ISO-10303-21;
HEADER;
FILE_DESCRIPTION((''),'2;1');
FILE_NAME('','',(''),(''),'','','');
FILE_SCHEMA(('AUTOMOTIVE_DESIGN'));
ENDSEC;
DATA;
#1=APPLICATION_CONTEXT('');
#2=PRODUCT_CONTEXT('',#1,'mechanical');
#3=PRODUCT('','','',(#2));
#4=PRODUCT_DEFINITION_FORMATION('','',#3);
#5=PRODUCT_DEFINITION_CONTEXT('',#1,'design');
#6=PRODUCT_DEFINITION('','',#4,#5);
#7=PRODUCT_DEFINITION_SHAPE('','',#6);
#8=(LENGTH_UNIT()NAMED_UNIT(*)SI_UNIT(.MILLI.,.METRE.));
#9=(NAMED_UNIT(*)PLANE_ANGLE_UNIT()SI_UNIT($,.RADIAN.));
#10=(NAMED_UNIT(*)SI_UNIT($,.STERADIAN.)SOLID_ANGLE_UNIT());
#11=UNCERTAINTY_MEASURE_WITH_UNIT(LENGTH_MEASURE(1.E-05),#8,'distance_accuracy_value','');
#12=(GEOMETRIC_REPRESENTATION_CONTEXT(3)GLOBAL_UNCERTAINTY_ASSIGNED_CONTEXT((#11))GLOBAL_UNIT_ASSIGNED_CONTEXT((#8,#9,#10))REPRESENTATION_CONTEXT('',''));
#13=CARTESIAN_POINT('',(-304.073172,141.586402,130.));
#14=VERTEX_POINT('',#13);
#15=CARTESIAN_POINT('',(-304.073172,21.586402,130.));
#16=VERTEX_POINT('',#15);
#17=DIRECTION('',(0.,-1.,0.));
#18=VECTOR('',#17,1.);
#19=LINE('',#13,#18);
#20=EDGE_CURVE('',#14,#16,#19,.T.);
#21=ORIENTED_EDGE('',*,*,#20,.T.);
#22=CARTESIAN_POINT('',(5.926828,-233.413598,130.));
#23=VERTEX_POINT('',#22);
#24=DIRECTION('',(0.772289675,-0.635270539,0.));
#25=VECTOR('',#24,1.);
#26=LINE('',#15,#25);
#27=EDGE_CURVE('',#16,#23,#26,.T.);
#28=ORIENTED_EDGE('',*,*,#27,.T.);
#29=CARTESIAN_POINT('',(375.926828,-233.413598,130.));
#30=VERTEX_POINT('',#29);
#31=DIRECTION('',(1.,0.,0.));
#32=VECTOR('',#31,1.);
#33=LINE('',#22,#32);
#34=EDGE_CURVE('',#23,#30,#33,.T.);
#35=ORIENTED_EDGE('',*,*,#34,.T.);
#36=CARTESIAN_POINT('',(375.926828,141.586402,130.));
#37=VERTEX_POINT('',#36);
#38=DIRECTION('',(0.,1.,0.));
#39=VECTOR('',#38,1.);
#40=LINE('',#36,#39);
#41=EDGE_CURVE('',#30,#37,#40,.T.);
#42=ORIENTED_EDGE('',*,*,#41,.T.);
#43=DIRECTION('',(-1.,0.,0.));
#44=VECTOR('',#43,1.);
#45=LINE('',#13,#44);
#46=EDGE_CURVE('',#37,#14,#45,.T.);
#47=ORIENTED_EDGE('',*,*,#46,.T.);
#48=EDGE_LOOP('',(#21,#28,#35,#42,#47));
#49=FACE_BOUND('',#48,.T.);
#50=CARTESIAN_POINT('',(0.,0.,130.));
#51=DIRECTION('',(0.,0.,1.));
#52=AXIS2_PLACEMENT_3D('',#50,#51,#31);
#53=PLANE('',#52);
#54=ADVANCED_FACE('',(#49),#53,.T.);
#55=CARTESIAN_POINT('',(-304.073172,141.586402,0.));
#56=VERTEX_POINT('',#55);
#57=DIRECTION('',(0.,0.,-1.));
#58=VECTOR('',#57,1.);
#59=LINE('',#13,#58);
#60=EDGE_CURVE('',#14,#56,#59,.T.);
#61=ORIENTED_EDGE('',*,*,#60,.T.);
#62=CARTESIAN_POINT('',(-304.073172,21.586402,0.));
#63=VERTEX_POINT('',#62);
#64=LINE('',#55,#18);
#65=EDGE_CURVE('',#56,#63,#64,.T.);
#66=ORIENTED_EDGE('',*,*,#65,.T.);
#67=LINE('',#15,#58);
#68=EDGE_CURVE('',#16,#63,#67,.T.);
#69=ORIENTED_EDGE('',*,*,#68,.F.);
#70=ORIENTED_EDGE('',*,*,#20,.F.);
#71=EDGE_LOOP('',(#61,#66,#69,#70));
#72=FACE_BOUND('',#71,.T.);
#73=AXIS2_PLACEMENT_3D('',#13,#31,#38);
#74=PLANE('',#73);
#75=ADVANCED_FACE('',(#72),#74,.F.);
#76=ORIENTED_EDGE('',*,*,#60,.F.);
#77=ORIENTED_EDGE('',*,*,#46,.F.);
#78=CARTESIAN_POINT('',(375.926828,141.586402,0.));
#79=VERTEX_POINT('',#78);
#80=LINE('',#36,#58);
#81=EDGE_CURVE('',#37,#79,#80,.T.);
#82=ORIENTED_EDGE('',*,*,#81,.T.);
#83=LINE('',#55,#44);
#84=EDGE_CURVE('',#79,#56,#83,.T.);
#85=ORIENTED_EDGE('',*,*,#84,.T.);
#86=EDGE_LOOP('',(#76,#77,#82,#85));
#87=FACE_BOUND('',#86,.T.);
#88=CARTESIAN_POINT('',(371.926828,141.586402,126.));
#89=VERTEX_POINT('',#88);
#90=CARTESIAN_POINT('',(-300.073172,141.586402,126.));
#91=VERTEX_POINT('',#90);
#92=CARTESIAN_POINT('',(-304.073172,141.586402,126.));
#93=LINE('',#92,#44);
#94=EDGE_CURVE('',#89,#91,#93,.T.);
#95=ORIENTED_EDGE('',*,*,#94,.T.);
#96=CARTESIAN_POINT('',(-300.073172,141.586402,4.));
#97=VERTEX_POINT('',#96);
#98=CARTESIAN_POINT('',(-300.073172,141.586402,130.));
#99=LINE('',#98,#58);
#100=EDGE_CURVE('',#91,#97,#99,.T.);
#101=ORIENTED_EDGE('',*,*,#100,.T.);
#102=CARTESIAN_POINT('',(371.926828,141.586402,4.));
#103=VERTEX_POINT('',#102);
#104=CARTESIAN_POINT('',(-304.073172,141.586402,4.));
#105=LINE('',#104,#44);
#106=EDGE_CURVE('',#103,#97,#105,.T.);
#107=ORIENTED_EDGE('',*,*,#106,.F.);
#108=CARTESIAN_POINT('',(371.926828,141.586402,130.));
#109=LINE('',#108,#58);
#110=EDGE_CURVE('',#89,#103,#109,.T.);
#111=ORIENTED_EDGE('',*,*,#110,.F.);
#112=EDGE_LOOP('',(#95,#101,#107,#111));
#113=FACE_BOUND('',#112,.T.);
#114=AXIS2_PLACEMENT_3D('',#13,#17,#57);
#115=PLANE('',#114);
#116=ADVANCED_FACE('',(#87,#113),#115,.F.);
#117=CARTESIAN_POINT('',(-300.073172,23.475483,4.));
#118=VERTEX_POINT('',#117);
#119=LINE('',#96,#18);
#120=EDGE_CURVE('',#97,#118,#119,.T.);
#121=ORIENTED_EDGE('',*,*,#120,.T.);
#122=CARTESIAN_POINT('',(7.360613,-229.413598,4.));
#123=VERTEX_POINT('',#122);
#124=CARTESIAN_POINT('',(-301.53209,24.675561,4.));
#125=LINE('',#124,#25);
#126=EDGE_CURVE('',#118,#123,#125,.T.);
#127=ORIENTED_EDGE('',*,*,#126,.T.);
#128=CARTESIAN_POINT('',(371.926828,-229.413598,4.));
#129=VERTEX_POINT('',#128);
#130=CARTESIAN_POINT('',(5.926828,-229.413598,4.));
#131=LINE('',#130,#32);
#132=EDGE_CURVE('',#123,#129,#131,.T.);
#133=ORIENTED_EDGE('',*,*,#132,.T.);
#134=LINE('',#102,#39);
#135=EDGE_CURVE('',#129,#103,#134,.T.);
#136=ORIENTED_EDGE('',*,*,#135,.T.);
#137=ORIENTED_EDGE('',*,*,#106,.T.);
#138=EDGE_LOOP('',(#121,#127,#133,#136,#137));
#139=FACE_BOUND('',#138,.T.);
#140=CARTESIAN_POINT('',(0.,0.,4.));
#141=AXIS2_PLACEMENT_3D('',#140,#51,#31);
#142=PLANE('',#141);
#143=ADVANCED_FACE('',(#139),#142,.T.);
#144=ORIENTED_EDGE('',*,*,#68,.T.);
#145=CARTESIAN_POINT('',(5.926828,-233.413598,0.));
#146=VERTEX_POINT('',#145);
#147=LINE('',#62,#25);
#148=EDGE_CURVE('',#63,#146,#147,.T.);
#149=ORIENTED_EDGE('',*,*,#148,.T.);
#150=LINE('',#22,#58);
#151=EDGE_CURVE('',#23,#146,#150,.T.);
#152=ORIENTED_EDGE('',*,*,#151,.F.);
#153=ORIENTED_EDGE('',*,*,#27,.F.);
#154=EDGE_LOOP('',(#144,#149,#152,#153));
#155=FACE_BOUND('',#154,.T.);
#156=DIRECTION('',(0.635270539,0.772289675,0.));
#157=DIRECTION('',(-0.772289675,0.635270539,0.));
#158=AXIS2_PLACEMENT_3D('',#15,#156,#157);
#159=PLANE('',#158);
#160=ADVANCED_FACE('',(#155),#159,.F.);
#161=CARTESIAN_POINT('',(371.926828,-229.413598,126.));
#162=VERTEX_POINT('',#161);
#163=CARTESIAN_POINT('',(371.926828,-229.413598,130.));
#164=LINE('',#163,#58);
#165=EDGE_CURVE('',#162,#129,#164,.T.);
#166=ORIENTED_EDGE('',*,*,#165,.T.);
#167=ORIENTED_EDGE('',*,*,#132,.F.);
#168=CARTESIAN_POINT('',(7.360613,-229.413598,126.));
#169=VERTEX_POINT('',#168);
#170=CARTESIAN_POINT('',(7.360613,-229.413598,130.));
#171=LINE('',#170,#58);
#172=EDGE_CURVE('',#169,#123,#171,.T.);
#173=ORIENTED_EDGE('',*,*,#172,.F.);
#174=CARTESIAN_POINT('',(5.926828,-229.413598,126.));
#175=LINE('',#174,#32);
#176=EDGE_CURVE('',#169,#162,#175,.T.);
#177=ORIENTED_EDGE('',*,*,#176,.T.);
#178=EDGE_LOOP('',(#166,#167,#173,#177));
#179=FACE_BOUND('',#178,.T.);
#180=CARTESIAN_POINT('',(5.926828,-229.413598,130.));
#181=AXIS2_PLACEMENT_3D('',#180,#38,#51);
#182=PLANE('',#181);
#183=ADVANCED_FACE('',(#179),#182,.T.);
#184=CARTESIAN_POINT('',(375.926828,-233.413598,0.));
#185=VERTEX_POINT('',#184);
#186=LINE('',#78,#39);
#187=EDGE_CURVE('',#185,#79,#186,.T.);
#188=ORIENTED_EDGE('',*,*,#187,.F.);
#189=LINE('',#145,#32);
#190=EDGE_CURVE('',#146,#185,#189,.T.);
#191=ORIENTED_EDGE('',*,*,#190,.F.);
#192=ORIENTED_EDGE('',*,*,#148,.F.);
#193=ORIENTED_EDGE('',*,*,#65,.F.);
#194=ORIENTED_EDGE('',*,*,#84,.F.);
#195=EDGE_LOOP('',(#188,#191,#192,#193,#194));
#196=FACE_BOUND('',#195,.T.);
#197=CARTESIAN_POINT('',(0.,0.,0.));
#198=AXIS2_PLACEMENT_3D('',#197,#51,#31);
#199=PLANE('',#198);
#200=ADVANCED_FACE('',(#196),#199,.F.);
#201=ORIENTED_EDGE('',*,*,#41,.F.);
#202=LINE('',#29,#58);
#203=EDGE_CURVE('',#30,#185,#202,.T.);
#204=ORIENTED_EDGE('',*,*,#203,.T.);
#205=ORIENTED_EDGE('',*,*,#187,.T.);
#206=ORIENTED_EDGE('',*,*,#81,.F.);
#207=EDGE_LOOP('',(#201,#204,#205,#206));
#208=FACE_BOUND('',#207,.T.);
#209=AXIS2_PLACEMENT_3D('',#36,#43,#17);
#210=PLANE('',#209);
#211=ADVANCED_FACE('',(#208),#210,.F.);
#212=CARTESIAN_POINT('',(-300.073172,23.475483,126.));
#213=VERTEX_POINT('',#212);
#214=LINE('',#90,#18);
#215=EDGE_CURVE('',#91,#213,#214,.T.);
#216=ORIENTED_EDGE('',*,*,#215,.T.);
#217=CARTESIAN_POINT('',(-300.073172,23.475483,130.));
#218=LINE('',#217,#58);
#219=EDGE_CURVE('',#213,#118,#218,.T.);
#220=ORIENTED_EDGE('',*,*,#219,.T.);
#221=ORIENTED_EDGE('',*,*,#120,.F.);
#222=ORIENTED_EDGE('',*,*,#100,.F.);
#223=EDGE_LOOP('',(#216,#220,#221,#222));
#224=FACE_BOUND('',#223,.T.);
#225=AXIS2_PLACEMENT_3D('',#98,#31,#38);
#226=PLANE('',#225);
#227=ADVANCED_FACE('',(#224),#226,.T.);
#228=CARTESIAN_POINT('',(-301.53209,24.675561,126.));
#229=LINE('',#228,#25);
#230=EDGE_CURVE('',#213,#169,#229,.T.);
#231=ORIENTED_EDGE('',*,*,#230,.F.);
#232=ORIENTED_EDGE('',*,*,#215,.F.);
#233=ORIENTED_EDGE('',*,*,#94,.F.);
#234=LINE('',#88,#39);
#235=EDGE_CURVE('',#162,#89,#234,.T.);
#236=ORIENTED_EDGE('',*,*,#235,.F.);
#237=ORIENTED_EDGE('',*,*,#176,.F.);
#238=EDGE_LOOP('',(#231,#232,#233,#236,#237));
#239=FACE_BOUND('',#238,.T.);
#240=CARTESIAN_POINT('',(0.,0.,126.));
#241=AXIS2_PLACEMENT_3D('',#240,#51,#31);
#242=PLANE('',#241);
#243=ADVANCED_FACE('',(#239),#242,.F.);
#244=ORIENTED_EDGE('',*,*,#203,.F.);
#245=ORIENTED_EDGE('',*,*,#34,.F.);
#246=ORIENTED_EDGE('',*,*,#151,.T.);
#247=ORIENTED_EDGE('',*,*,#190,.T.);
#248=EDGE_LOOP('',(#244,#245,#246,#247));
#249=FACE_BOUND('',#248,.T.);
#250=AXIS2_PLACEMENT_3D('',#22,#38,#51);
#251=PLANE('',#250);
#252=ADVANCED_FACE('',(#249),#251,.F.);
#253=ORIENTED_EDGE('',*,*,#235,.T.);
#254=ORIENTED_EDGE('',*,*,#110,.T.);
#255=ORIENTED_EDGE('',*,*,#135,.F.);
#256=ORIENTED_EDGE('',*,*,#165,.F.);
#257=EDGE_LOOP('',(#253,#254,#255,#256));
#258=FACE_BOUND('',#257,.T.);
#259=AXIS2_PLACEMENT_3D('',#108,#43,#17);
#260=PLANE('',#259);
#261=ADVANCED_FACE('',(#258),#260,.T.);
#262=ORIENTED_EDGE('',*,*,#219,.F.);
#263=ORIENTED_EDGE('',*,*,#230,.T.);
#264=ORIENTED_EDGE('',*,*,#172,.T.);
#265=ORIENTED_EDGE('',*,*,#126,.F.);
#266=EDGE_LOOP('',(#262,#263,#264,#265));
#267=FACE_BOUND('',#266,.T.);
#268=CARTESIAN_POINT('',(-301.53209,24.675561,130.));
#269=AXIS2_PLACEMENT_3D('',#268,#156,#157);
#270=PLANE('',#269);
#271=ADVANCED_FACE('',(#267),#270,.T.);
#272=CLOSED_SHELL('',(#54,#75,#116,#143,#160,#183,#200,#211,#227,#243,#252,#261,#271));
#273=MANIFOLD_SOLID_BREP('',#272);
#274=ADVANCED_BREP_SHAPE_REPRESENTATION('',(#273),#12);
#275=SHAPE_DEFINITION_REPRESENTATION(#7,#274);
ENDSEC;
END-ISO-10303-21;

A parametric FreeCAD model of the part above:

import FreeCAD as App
import Part
import Sketcher

V = App.Vector
Q = App.Units.Quantity


def faces_at(feature, points):
    """Names of the faces that lie closest to the given points."""
    faces = feature.Shape.Faces
    near = lambda p: min(range(len(faces)), key=lambda i: faces[i].distToShape(Part.Vertex(*p))[0])
    return sorted({f"Face{near(p) + 1}" for p in points})


def add_polygon(sketch, points):
    """Adds a closed chain of lines whose ends are joined by coincident constraints."""
    first, n = sketch.GeometryCount, len(points)
    for a, b in zip(points, points[1:] + points[:1]):
        sketch.addGeometry(Part.LineSegment(App.Vector(*a, 0), App.Vector(*b, 0)), False)
    for i in range(n):
        sketch.addConstraint(Sketcher.Constraint("Coincident", first + i, 2, first + (i + 1) % n, 1))

doc = App.newDocument("Part")
params = doc.addObject("Spreadsheet::Sheet", "Params")
for row, (alias, value) in enumerate([
    ("sketch1_width", "370 mm"),
    ("sketch1_width2", "680 mm"),
    ("sketch1_height", "375 mm"),
    ("sketch1_height2", "120 mm"),
    ("pad1_length", "130 mm"),
    ("thickness_wall", "4 mm"),
], start=1):
    params.set(f"A{row}", alias)
    params.set(f"B{row}", "=" + value)
    params.setAlias(f"B{row}", alias)

body = doc.addObject("PartDesign::Body", "Body")

# Sketch on XY plane
sketch1 = doc.addObject("Sketcher::SketchObject", "Sketch")
body.addObject(sketch1)
sketch1.AttachmentSupport = (doc.XY_Plane, [""])
sketch1.MapMode = "FlatFace"
add_polygon(sketch1, [(-304, 22), (6, -233), (376, -233), (376, 142), (-304, 142)])  # lines 0-4
sketch1.addConstraint([
    Sketcher.Constraint("Horizontal", 1),
    Sketcher.Constraint("Vertical", 2),
    Sketcher.Constraint("Horizontal", 3),
    Sketcher.Constraint("Vertical", 4),
    Sketcher.Constraint("DistanceX", 1, 1, 1, 2, Q("370 mm")),
    Sketcher.Constraint("DistanceX", 3, 2, 3, 1, Q("680 mm")),
    Sketcher.Constraint("DistanceY", 2, 1, 2, 2, Q("375 mm")),
    Sketcher.Constraint("DistanceY", 4, 2, 4, 1, Q("120 mm")),
    Sketcher.Constraint("DistanceX", -1, 1, 0, 2, Q("5.926828 mm")),
    Sketcher.Constraint("DistanceY", 0, 2, -1, 1, Q("233.413598 mm")),
])
sketch1.setExpression("Constraints[9]", "Params.sketch1_width")
sketch1.setExpression("Constraints[10]", "Params.sketch1_width2")
sketch1.setExpression("Constraints[11]", "Params.sketch1_height")
sketch1.setExpression("Constraints[12]", "Params.sketch1_height2")
pad1 = doc.addObject("PartDesign::Pad", "Pad")
body.addObject(pad1)
pad1.Profile = sketch1
pad1.setExpression("Length", "Params.pad1_length")
doc.recompute()

thickness = doc.addObject("PartDesign::Thickness", "Thickness")
body.addObject(thickness)
thickness.Base = (pad1, faces_at(pad1, [(35.927, 141.586, 65)]))
thickness.setExpression("Value", "Params.thickness_wall")
thickness.Reversed = True
thickness.Join = "Intersection"

doc.recompute()
